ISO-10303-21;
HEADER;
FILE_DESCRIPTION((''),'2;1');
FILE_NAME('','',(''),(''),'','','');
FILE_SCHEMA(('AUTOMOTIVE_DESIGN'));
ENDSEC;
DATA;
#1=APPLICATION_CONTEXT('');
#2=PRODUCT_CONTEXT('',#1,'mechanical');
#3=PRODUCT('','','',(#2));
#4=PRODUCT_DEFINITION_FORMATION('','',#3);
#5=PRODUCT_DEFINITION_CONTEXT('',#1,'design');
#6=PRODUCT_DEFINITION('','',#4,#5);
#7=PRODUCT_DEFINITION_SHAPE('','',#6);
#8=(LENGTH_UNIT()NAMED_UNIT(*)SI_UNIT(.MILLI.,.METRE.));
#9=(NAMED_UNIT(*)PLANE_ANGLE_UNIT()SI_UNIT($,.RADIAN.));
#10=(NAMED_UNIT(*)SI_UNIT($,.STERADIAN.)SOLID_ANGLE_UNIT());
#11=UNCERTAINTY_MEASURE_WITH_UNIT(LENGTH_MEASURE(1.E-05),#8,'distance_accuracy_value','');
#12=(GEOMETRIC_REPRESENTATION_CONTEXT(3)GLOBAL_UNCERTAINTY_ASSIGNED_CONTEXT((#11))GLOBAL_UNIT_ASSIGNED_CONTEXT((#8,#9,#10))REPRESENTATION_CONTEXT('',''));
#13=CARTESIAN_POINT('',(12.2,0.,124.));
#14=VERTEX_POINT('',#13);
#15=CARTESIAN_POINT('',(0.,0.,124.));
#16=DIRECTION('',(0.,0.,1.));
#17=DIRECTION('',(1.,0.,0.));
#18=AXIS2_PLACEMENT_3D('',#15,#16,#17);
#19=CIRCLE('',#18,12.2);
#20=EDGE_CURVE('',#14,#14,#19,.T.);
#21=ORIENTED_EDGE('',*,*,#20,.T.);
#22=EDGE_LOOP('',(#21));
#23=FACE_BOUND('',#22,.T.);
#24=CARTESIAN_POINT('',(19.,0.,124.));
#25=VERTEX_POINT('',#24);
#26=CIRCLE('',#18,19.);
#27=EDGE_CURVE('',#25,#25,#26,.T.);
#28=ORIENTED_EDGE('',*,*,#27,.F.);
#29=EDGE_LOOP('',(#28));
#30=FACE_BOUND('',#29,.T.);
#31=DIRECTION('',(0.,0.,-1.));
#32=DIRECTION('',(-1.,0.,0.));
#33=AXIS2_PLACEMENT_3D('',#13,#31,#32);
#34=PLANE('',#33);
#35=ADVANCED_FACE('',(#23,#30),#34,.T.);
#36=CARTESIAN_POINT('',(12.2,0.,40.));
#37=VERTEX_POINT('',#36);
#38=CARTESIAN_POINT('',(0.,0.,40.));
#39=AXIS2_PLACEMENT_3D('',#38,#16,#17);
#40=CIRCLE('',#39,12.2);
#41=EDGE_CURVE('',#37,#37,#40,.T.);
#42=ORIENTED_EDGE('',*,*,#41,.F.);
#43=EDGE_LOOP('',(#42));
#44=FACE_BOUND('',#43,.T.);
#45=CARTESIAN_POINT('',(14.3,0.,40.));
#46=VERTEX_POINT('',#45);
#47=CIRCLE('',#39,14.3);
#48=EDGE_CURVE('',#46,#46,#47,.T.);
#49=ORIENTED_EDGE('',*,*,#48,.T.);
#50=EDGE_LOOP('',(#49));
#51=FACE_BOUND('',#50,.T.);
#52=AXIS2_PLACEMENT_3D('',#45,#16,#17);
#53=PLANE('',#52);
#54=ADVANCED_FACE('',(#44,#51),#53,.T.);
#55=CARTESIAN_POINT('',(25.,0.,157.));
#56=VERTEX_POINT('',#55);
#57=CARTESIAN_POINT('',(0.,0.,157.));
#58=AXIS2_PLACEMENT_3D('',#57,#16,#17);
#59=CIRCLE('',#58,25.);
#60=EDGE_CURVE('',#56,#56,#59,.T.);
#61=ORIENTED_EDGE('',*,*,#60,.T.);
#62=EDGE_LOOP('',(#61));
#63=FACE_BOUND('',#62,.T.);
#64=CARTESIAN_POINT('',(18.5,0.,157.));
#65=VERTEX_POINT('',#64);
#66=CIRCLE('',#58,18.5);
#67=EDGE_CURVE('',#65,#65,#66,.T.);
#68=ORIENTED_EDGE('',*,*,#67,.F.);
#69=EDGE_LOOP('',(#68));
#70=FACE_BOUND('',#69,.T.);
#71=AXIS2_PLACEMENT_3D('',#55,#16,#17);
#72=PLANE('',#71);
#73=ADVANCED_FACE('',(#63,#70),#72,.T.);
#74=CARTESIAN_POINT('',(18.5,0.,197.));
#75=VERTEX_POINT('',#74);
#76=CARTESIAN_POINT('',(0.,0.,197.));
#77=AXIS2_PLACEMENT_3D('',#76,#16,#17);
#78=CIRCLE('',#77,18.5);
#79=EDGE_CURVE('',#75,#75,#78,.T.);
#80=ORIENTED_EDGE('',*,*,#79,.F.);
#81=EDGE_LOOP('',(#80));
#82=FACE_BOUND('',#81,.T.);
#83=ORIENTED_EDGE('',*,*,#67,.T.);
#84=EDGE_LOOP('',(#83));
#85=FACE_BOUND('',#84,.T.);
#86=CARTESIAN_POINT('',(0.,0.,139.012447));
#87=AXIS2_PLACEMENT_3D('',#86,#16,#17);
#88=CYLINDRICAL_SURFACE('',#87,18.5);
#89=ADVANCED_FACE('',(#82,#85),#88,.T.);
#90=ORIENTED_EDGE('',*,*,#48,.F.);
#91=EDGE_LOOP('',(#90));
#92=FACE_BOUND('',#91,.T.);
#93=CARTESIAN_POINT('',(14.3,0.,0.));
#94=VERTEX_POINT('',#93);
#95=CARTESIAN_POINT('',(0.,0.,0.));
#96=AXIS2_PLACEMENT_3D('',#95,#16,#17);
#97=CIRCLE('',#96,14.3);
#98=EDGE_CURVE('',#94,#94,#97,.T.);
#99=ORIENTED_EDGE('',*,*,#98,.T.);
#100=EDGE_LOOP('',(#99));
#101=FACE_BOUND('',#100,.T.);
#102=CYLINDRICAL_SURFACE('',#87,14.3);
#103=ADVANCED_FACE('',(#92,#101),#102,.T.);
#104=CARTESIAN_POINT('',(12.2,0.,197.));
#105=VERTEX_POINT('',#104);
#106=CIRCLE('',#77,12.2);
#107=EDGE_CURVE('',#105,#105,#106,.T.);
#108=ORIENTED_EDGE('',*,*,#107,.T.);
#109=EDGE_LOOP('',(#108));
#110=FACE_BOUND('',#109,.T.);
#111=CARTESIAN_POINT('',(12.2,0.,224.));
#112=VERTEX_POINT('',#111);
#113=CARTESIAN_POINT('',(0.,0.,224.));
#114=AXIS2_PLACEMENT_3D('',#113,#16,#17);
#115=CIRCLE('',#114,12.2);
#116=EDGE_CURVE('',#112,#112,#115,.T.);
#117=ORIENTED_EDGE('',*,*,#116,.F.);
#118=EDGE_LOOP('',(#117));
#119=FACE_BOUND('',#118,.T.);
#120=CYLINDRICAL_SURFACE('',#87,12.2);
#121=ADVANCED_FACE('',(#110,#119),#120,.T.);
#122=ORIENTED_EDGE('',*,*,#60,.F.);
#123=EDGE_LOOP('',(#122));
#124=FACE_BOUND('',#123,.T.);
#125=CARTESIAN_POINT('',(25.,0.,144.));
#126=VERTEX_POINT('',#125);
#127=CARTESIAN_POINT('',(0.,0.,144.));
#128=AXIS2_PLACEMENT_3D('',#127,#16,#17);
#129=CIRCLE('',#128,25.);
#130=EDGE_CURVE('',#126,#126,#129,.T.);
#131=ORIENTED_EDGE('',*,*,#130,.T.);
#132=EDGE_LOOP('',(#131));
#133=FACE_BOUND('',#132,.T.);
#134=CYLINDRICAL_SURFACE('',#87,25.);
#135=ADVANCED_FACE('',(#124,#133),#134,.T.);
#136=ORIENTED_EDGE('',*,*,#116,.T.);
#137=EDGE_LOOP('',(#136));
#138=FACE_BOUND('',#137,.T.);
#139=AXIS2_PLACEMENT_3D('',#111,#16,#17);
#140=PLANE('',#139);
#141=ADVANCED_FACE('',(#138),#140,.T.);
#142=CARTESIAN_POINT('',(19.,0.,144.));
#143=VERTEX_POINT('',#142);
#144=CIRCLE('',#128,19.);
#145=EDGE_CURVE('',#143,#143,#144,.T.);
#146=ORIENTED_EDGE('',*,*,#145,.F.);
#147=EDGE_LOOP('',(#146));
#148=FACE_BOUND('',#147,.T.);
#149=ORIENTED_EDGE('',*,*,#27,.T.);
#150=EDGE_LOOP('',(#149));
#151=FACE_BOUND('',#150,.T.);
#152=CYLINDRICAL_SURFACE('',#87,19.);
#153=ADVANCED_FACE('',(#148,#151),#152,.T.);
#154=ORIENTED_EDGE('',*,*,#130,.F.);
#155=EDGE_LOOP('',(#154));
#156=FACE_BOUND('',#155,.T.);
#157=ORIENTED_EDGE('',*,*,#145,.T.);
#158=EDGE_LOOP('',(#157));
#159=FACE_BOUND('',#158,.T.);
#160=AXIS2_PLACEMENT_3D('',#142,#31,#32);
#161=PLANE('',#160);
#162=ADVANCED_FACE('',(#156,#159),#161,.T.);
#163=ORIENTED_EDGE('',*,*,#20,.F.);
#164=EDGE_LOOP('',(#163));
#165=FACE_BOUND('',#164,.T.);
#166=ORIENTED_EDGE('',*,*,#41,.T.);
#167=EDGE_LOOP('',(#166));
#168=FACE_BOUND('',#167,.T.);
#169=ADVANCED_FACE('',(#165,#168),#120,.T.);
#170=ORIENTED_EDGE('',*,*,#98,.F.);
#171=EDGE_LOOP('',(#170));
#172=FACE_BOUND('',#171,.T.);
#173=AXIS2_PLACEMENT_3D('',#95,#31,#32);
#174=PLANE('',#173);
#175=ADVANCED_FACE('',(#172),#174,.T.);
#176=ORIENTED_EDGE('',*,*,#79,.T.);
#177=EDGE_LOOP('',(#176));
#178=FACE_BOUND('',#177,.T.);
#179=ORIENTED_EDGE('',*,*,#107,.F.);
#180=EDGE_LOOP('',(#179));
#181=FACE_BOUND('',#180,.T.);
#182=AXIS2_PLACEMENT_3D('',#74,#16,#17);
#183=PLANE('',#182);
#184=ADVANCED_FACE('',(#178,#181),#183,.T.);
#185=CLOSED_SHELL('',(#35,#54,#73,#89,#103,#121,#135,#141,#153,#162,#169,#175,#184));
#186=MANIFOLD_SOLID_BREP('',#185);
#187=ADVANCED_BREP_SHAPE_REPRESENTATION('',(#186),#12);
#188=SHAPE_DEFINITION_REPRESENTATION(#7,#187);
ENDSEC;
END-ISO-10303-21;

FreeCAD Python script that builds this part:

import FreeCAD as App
import Part
import Sketcher
from FreeCAD import Vector
Q = App.Units.Quantity

doc = App.newDocument("Part")
body = doc.addObject("PartDesign::Body", "Body")

sketch1 = body.newObject("Sketcher::SketchObject", "Sketch")
sketch1.AttachmentSupport = (doc.getObject("XZ_Plane"), [""])
sketch1.MapMode = "FlatFace"
sketch1.addGeometry(Part.LineSegment(Vector(14.3, 0, 0), Vector(0, 0, 0)), False)
sketch1.addGeometry(Part.LineSegment(Vector(0, 0, 0), Vector(0, 224, 0)), False)
sketch1.addGeometry(Part.LineSegment(Vector(0, 224, 0), Vector(12.2, 224, 0)), False)
sketch1.addGeometry(Part.LineSegment(Vector(12.2, 224, 0), Vector(12.2, 197, 0)), False)
sketch1.addGeometry(Part.LineSegment(Vector(12.2, 197, 0), Vector(18.5, 197, 0)), False)
sketch1.addGeometry(Part.LineSegment(Vector(18.5, 197, 0), Vector(18.5, 157, 0)), False)
sketch1.addGeometry(Part.LineSegment(Vector(18.5, 157, 0), Vector(25, 157, 0)), False)
sketch1.addGeometry(Part.LineSegment(Vector(25, 157, 0), Vector(25, 144, 0)), False)
sketch1.addGeometry(Part.LineSegment(Vector(25, 144, 0), Vector(19, 144, 0)), False)
sketch1.addGeometry(Part.LineSegment(Vector(19, 144, 0), Vector(19, 124, 0)), False)
sketch1.addGeometry(Part.LineSegment(Vector(19, 124, 0), Vector(12.2, 124, 0)), False)
sketch1.addGeometry(Part.LineSegment(Vector(12.2, 124, 0), Vector(12.2, 40, 0)), False)
sketch1.addGeometry(Part.LineSegment(Vector(12.2, 40, 0), Vector(14.3, 40, 0)), False)
sketch1.addGeometry(Part.LineSegment(Vector(14.3, 40, 0), Vector(14.3, 0, 0)), False)
sketch1.addConstraint(Sketcher.Constraint("Coincident", 0, 2, 1, 1))
sketch1.addConstraint(Sketcher.Constraint("Coincident", 1, 2, 2, 1))
sketch1.addConstraint(Sketcher.Constraint("Coincident", 2, 2, 3, 1))
sketch1.addConstraint(Sketcher.Constraint("Coincident", 3, 2, 4, 1))
sketch1.addConstraint(Sketcher.Constraint("Coincident", 4, 2, 5, 1))
sketch1.addConstraint(Sketcher.Constraint("Coincident", 5, 2, 6, 1))
sketch1.addConstraint(Sketcher.Constraint("Coincident", 6, 2, 7, 1))
sketch1.addConstraint(Sketcher.Constraint("Coincident", 7, 2, 8, 1))
sketch1.addConstraint(Sketcher.Constraint("Coincident", 8, 2, 9, 1))
sketch1.addConstraint(Sketcher.Constraint("Coincident", 9, 2, 10, 1))
sketch1.addConstraint(Sketcher.Constraint("Coincident", 10, 2, 11, 1))
sketch1.addConstraint(Sketcher.Constraint("Coincident", 11, 2, 12, 1))
sketch1.addConstraint(Sketcher.Constraint("Coincident", 12, 2, 13, 1))
sketch1.addConstraint(Sketcher.Constraint("Coincident", 13, 2, 0, 1))
sketch1.addConstraint(Sketcher.Constraint("Horizontal", 0))
sketch1.addConstraint(Sketcher.Constraint("Vertical", 1))
sketch1.addConstraint(Sketcher.Constraint("Horizontal", 2))
sketch1.addConstraint(Sketcher.Constraint("Vertical", 3))
sketch1.addConstraint(Sketcher.Constraint("Horizontal", 4))
sketch1.addConstraint(Sketcher.Constraint("Vertical", 5))
sketch1.addConstraint(Sketcher.Constraint("Horizontal", 6))
sketch1.addConstraint(Sketcher.Constraint("Vertical", 7))
sketch1.addConstraint(Sketcher.Constraint("Horizontal", 8))
sketch1.addConstraint(Sketcher.Constraint("Vertical", 9))
sketch1.addConstraint(Sketcher.Constraint("Horizontal", 10))
sketch1.addConstraint(Sketcher.Constraint("Vertical", 11))
sketch1.addConstraint(Sketcher.Constraint("Horizontal", 12))
sketch1.addConstraint(Sketcher.Constraint("Vertical", 13))
sketch1.addConstraint(Sketcher.Constraint("Coincident", 0, 2, -1, 1))
sketch1.addConstraint(Sketcher.Constraint("Vertical", 3, 2, 10, 2))
sketch1.addConstraint(Sketcher.Constraint("Equal", 5, 13))
sketch1.addConstraint(Sketcher.Constraint("DistanceX", 8, 2, 8, 1, Q("6 mm")))
sketch1.addConstraint(Sketcher.Constraint("DistanceY", 1, 1, 1, 2, Q("224 mm")))
sketch1.addConstraint(Sketcher.Constraint("DistanceY", 3, 2, 3, 1, Q("27 mm")))
sketch1.addConstraint(Sketcher.Constraint("DistanceY", 5, 2, 5, 1, Q("40 mm")))
sketch1.addConstraint(Sketcher.Constraint("DistanceY", 7, 2, 7, 1, Q("13 mm")))
sketch1.addConstraint(Sketcher.Constraint("DistanceY", 9, 2, 9, 1, Q("20 mm")))
sketch1.addConstraint(Sketcher.Constraint("DistanceX", 0, 2, 0, 1, Q("14.3 mm")))
sketch1.addConstraint(Sketcher.Constraint("DistanceX", 2, 1, 2, 2, Q("12.2 mm")))
sketch1.addConstraint(Sketcher.Constraint("DistanceX", 4, 1, 4, 2, Q("6.3 mm")))
sketch1.addConstraint(Sketcher.Constraint("DistanceX", 6, 1, 6, 2, Q("6.5 mm")))
revolution = body.newObject("PartDesign::Revolution", "Revolution")
revolution.Profile = sketch1
revolution.ReferenceAxis = (sketch1, ["V_Axis"])
revolution.Angle = 360

doc.recompute()
